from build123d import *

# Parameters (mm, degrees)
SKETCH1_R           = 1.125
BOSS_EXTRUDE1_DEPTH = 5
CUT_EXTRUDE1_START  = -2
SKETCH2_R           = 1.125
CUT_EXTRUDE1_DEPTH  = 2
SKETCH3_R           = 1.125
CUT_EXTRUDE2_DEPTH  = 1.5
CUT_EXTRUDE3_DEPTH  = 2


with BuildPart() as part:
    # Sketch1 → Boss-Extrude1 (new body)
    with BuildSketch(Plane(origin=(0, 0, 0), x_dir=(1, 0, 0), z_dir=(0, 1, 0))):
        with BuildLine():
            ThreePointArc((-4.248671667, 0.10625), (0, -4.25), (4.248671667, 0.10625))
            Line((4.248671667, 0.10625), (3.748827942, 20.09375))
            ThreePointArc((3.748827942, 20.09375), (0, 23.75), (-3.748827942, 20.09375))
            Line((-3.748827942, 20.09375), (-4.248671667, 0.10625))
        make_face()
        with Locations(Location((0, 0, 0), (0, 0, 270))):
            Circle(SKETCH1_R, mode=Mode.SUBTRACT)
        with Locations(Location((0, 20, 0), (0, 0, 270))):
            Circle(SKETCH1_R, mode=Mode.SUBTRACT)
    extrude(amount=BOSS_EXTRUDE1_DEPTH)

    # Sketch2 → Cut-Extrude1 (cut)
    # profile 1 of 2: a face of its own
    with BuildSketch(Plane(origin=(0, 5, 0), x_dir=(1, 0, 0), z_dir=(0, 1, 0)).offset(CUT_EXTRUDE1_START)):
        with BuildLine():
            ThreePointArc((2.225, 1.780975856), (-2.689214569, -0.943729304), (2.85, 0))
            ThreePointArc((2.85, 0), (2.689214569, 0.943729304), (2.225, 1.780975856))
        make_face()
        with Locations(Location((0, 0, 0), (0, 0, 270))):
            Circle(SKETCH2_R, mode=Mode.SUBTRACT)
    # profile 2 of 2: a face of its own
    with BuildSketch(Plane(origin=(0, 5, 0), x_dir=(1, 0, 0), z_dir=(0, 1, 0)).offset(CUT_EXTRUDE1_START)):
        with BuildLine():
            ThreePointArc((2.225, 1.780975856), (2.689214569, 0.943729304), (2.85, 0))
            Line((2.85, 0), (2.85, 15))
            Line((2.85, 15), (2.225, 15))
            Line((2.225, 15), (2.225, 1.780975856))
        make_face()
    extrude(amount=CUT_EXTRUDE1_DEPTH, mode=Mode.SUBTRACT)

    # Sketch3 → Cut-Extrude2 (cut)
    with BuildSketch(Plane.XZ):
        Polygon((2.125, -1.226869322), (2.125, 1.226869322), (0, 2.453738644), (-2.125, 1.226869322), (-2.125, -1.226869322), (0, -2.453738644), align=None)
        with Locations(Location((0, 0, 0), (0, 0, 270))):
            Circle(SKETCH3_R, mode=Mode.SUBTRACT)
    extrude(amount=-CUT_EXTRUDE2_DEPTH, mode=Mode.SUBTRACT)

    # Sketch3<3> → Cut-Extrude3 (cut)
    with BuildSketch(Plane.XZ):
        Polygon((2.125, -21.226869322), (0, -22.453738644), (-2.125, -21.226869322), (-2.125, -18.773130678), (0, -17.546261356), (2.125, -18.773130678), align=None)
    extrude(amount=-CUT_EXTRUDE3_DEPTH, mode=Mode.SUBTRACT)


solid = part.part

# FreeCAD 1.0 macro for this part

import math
import FreeCAD as App
import Part
import Sketcher

V = App.Vector
Q = App.Units.Quantity

doc = App.newDocument("Part")
body = doc.addObject("PartDesign::Body", "Body")

# Sketch on XZ plane
sketch1 = body.newObject("Sketcher::SketchObject", "Sketch")
sketch1.AttachmentSupport = (doc.getObject("XZ_Plane"), [""])
sketch1.MapMode = "FlatFace"
sketch1.addGeometry([
    Part.ArcOfCircle(Part.Circle(V(0, 0, 0), V(0, 0, 1), 4.2), math.radians(-1), math.radians(181)),  # 0
    Part.LineSegment(V(4.2, -0.1, 0), V(3.7, -20.1, 0)),  # 1
    Part.ArcOfCircle(Part.Circle(V(0, -20, 0), V(0, 0, 1), 3.8), math.radians(-179), math.radians(-1)),  # 2
    Part.LineSegment(V(-3.7, -20.1, 0), V(-4.2, -0.1, 0)),  # 3
    Part.Circle(V(0, 0, 0), V(0, 0, 1), 1.1),  # 4
    Part.Circle(V(0, -20, 0), V(0, 0, 1), 1.1),  # 5
], False)
sketch1.addConstraint([
    Sketcher.Constraint("Tangent", 0, 1, 1, 1),
    Sketcher.Constraint("Tangent", 1, 2, 2, 2),
    Sketcher.Constraint("Tangent", 2, 1, 3, 1),
    Sketcher.Constraint("Tangent", 3, 2, 0, 2),
    Sketcher.Constraint("Coincident", 0, 3, -1, 1),
    Sketcher.Constraint("Coincident", 4, 3, -1, 1),
    Sketcher.Constraint("Coincident", 5, 3, 2, 3),
    Sketcher.Constraint("Equal", 4, 5),
    Sketcher.Constraint("PointOnObject", 2, 3, -2),
    Sketcher.Constraint("Diameter", 4, Q("2.25 mm")),
    Sketcher.Constraint("Radius", 0, Q("4.25 mm")),
    Sketcher.Constraint("Radius", 2, Q("3.75 mm")),
    Sketcher.Constraint("DistanceY", 2, 3, -1, 1, Q("20 mm")),
])
pad1 = body.newObject("PartDesign::Pad", "Pad")
pad1.Profile = sketch1
pad1.Length = 5
pad1.Reversed = True

# Sketch on XZ plane
sketch2 = body.newObject("Sketcher::SketchObject", "Sketch001")
sketch2.AttachmentSupport = (doc.getObject("XZ_Plane"), [""])
sketch2.MapMode = "FlatFace"
sketch2.AttachmentOffset = App.Placement(V(0, 0, -3), App.Rotation())
sketch2.addGeometry([
    Part.ArcOfCircle(Part.Circle(V(0, 0, 0), V(0, 0, 1), 2.9), math.radians(0), math.radians(321)),  # 0
    Part.LineSegment(V(2.9, 0, 0), V(2.9, -15, 0)),  # 1
    Part.LineSegment(V(2.9, -15, 0), V(2.2, -15, 0)),  # 2
    Part.LineSegment(V(2.2, -15, 0), V(2.2, -1.8, 0)),  # 3
    Part.Circle(V(0, 0, 0), V(0, 0, 1), 1.1),  # 4
], False)
sketch2.addConstraint([
    Sketcher.Constraint("Tangent", 0, 1, 1, 1),
    Sketcher.Constraint("Coincident", 1, 2, 2, 1),
    Sketcher.Constraint("Coincident", 2, 2, 3, 1),
    Sketcher.Constraint("Coincident", 3, 2, 0, 2),
    Sketcher.Constraint("Vertical", 1),
    Sketcher.Constraint("Horizontal", 2),
    Sketcher.Constraint("Vertical", 3),
    Sketcher.Constraint("Coincident", 0, 3, -1, 1),
    Sketcher.Constraint("Coincident", 4, 3, -1, 1),
    Sketcher.Constraint("Diameter", 4, Q("2.25 mm")),
    Sketcher.Constraint("DistanceY", 1, 2, 1, 1, Q("15 mm")),
    Sketcher.Constraint("Radius", 0, Q("2.85 mm")),
    Sketcher.Constraint("DistanceX", 2, 2, 2, 1, Q("0.625 mm")),
])
pocket1 = body.newObject("PartDesign::Pocket", "Pocket")
pocket1.Profile = sketch2
pocket1.Length = 2

# Sketch on XZ plane
sketch3 = body.newObject("Sketcher::SketchObject", "Sketch002")
sketch3.AttachmentSupport = (doc.getObject("XZ_Plane"), [""])
sketch3.MapMode = "FlatFace"
sketch3.addGeometry([
    Part.LineSegment(V(2.1, -1.2, 0), V(2.1, 1.2, 0)),  # 0
    Part.LineSegment(V(2.1, 1.2, 0), V(0, 2.5, 0)),  # 1
    Part.LineSegment(V(0, 2.5, 0), V(-2.1, 1.2, 0)),  # 2
    Part.LineSegment(V(-2.1, 1.2, 0), V(-2.1, -1.2, 0)),  # 3
    Part.LineSegment(V(-2.1, -1.2, 0), V(0, -2.5, 0)),  # 4
    Part.LineSegment(V(0, -2.5, 0), V(2.1, -1.2, 0)),  # 5
    Part.Circle(V(0, 0, 0), V(0, 0, 1), 1.1),  # 6
], False)
sketch3.addConstraint([
    Sketcher.Constraint("Coincident", 0, 2, 1, 1),
    Sketcher.Constraint("Coincident", 1, 2, 2, 1),
    Sketcher.Constraint("Coincident", 2, 2, 3, 1),
    Sketcher.Constraint("Coincident", 3, 2, 4, 1),
    Sketcher.Constraint("Coincident", 4, 2, 5, 1),
    Sketcher.Constraint("Coincident", 5, 2, 0, 1),
    Sketcher.Constraint("Vertical", 0),
    Sketcher.Constraint("Vertical", 3),
    Sketcher.Constraint("Coincident", 6, 3, -1, 1),
    Sketcher.Constraint("Symmetric", 0, 2, 3, 2, -1, 1),
    Sketcher.Constraint("Symmetric", 1, 2, 4, 2, -1, 1),
    Sketcher.Constraint("PointOnObject", 1, 2, -2),
    Sketcher.Constraint("Parallel", 2, 5),
    Sketcher.Constraint("Horizontal", 0, 2, 2, 2),
    Sketcher.Constraint("Diameter", 6, Q("2.25 mm")),
    Sketcher.Constraint("Angle", 1, Q("150 deg")),
    Sketcher.Constraint("DistanceX", 2, 2, 0, 2, Q("4.25 mm")),
    Sketcher.Constraint("DistanceY", 0, 1, 0, 2, Q("2.453739 mm")),
])
pocket2 = body.newObject("PartDesign::Pocket", "Pocket001")
pocket2.Profile = sketch3
pocket2.Length = 1.5

# Sketch on XZ plane
sketch4 = body.newObject("Sketcher::SketchObject", "Sketch003")
sketch4.AttachmentSupport = (doc.getObject("XZ_Plane"), [""])
sketch4.MapMode = "FlatFace"
sketch4.addGeometry([
    Part.LineSegment(V(0, -22.5, 0), V(2.1, -21.2, 0)),  # 0
    Part.LineSegment(V(2.1, -21.2, 0), V(2.1, -18.8, 0)),  # 1
    Part.LineSegment(V(2.1, -18.8, 0), V(0, -17.5, 0)),  # 2
    Part.LineSegment(V(0, -17.5, 0), V(-2.1, -18.8, 0)),  # 3
    Part.LineSegment(V(-2.1, -18.8, 0), V(-2.1, -21.2, 0)),  # 4
    Part.LineSegment(V(-2.1, -21.2, 0), V(0, -22.5, 0)),  # 5
], False)
sketch4.addConstraint([
    Sketcher.Constraint("Coincident", 0, 2, 1, 1),
    Sketcher.Constraint("Coincident", 1, 2, 2, 1),
    Sketcher.Constraint("Coincident", 2, 2, 3, 1),
    Sketcher.Constraint("Coincident", 3, 2, 4, 1),
    Sketcher.Constraint("Coincident", 4, 2, 5, 1),
    Sketcher.Constraint("Coincident", 5, 2, 0, 1),
    Sketcher.Constraint("Vertical", 1),
    Sketcher.Constraint("Vertical", 4),
    Sketcher.Constraint("Symmetric", 1, 2, 3, 2, -2),
    Sketcher.Constraint("PointOnObject", 2, 2, -2),
    Sketcher.Constraint("PointOnObject", 5, 2, -2),
    Sketcher.Constraint("Parallel", 0, 3),
    Sketcher.Constraint("Parallel", 2, 5),
    Sketcher.Constraint("Angle", 0, Q("30 deg")),
    Sketcher.Constraint("DistanceX", 3, 2, 1, 2, Q("4.25 mm")),
    Sketcher.Constraint("DistanceY", 1, 1, 1, 2, Q("2.453739 mm")),
    Sketcher.Constraint("DistanceY", 0, 2, -1, 1, Q("21.226869 mm")),
])
pocket3 = body.newObject("PartDesign::Pocket", "Pocket002")
pocket3.Profile = sketch4
pocket3.Length = 2

doc.recompute()
